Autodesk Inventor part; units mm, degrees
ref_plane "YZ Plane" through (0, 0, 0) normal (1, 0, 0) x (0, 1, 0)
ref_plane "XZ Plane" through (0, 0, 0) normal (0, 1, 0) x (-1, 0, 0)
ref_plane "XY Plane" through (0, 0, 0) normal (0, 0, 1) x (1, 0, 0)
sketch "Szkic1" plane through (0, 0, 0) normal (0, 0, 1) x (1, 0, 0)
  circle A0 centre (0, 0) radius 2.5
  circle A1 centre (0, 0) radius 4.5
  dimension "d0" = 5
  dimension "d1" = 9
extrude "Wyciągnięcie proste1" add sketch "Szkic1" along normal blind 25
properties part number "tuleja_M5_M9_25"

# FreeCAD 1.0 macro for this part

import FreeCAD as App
import Part
import Sketcher
from FreeCAD import Vector
Q = App.Units.Quantity

doc = App.newDocument("Part")
body = doc.addObject("PartDesign::Body", "Body")

sketch1 = body.newObject("Sketcher::SketchObject", "Sketch")
sketch1.AttachmentSupport = (doc.getObject("XY_Plane"), [""])
sketch1.MapMode = "FlatFace"
sketch1.addGeometry([
    Part.Circle(Vector(0, 0, 0), Vector(0, 0, 1), 4.5),
    Part.Circle(Vector(0, 0, 0), Vector(0, 0, 1), 2.5),
], False)
sketch1.addConstraint([
    Sketcher.Constraint("Coincident", 0, 3, -1, 1),
    Sketcher.Constraint("Coincident", 1, 3, -1, 1),
    Sketcher.Constraint("Diameter", 0, Q("9 mm")),
    Sketcher.Constraint("Diameter", 1, Q("5 mm")),
])
pad1 = body.newObject("PartDesign::Pad", "Pad")
pad1.Profile = sketch1
pad1.Length = 25

doc.recompute()
